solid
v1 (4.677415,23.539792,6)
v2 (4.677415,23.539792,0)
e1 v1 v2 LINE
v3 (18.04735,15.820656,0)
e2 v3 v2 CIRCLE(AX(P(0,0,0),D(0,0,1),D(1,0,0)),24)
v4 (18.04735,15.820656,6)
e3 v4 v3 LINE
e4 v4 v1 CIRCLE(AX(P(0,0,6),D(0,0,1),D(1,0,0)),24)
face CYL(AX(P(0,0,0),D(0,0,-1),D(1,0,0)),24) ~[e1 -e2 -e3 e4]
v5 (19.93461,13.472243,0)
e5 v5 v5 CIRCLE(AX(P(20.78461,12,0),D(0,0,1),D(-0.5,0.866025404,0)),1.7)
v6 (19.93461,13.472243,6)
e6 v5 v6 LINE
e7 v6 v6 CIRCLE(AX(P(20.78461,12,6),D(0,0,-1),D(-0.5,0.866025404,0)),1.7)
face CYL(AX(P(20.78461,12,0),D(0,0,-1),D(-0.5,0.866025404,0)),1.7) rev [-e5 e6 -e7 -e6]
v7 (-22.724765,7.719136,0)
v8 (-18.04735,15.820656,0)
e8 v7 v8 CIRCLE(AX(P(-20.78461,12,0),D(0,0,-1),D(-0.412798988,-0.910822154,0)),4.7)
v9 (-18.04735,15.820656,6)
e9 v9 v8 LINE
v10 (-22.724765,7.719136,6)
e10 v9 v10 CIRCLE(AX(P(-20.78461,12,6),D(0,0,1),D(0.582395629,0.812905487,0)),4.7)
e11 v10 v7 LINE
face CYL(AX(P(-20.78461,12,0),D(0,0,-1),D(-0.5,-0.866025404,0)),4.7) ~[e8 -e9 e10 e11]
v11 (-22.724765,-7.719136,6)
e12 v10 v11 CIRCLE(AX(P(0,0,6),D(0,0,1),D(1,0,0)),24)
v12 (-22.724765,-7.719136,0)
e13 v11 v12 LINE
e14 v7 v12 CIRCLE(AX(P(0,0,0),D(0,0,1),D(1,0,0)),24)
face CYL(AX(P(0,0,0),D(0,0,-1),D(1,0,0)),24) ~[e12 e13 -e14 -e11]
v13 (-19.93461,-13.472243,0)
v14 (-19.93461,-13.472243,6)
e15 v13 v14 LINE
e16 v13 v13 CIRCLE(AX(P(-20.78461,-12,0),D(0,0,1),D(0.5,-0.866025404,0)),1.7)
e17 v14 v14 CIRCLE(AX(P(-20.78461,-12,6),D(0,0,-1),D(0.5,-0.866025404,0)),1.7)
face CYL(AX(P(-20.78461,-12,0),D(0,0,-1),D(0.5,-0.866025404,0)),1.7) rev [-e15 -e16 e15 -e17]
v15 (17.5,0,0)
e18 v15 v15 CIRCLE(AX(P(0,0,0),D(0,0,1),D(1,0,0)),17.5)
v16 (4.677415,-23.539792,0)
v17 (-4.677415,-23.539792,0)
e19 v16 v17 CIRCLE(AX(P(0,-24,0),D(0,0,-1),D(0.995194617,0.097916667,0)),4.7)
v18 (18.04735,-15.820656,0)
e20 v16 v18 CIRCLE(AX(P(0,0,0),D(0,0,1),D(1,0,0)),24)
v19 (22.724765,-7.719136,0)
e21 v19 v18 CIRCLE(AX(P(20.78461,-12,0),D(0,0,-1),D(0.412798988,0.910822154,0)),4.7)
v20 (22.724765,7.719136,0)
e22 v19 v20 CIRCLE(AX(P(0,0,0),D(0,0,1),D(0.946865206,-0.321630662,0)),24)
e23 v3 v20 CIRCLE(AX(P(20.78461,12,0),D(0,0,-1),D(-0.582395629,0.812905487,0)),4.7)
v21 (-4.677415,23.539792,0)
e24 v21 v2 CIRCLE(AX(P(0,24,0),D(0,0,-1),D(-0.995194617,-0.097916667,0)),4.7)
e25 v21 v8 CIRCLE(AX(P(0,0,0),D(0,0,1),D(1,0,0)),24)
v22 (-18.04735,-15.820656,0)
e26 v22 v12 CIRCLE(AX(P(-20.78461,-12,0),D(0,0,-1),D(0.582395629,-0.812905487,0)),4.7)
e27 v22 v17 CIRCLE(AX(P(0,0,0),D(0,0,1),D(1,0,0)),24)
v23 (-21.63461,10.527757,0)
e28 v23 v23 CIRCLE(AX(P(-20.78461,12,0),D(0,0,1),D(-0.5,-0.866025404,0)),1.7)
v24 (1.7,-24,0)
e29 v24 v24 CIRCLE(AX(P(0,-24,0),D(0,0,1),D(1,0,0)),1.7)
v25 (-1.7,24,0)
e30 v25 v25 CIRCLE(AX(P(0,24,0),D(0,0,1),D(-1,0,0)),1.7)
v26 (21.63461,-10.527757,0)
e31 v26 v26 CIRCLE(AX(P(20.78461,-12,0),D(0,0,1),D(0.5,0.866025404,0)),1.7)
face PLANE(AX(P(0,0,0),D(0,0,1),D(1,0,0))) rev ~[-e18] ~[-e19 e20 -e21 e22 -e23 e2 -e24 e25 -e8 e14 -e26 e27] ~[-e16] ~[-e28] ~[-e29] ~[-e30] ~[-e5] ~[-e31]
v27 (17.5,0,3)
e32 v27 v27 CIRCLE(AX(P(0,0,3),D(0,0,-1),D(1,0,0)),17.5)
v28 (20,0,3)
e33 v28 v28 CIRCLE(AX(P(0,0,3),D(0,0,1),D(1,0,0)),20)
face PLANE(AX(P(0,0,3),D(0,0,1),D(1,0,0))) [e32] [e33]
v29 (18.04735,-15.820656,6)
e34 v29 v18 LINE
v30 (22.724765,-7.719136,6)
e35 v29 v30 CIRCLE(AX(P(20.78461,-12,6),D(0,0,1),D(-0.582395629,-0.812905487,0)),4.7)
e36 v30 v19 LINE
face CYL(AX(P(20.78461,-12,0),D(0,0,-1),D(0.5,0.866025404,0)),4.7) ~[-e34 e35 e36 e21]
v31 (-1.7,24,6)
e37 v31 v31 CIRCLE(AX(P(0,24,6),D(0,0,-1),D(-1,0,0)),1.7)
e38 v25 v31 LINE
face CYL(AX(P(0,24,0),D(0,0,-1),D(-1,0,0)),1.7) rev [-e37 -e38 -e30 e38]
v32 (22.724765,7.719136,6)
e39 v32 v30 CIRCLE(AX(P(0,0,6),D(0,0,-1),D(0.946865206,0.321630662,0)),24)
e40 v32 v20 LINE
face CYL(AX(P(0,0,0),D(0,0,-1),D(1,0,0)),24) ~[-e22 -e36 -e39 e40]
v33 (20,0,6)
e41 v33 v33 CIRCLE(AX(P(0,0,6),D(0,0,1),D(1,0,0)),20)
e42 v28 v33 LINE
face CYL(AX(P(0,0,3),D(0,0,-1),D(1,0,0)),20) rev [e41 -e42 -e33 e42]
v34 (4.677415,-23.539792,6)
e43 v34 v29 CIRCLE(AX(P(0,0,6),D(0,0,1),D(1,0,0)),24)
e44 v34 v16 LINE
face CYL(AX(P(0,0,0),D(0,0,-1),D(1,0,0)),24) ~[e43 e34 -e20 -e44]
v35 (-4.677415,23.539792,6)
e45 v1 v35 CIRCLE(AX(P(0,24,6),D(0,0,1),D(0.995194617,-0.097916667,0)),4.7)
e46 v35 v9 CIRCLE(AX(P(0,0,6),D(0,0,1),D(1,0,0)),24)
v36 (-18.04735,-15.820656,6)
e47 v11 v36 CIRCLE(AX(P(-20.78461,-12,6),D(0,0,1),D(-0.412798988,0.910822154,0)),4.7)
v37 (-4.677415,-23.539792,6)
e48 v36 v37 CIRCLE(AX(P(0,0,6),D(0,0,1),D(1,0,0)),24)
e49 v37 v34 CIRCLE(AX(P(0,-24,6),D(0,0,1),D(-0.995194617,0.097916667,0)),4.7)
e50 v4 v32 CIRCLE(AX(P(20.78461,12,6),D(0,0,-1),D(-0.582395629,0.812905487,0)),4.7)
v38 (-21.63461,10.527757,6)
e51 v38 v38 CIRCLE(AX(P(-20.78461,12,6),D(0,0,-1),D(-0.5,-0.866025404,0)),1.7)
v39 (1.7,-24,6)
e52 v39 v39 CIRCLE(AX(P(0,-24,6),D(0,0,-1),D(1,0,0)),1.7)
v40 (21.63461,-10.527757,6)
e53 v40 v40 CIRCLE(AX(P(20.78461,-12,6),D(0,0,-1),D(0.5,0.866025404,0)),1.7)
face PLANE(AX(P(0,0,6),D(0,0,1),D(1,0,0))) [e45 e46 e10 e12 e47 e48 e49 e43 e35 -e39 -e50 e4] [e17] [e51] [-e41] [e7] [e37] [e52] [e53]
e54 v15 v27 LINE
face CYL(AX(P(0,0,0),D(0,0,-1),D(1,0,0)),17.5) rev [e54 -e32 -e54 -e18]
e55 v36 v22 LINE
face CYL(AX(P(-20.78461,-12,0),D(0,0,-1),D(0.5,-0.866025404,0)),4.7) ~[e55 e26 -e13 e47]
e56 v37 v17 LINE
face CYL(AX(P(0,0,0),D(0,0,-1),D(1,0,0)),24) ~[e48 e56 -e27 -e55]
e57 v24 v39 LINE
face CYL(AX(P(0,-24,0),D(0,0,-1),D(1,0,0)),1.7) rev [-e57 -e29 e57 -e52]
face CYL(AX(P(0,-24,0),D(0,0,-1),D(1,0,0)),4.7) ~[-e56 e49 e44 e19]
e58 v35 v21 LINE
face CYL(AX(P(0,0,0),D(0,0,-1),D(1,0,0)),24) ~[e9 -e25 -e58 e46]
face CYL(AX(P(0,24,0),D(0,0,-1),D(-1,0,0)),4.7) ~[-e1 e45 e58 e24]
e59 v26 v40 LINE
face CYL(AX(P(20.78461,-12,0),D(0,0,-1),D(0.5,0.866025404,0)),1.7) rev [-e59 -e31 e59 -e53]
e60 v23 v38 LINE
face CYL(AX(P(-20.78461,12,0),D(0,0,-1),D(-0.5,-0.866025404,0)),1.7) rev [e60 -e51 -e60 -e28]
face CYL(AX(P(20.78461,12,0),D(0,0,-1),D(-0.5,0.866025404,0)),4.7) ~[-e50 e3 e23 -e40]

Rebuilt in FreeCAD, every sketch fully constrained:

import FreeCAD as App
import Part
import Sketcher

V = App.Vector
Q = App.Units.Quantity

doc = App.newDocument("Part")
params = doc.addObject("Spreadsheet::Sheet", "Params")
for row, (alias, value) in enumerate([
    ("sketch1_diameter", "35 mm"),
    ("pad1_length", "10 mm"),
    ("sketch2_diameter", "40 mm"),
    ("pad2_length", "3 mm"),
    ("sketch3_diameter", "3.4 mm"),
    ("pad3_length", "10 mm"),
    ("sketch4_diameter", "48 mm"),
    ("pad4_length", "6 mm"),
    ("sketch5_diameter", "9.4 mm"),
    ("pad5_length", "6 mm"),
], start=1):
    params.set(f"A{row}", alias)
    params.set(f"B{row}", "=" + value)
    params.setAlias(f"B{row}", alias)

body = doc.addObject("PartDesign::Body", "Body")

# Sketch on XY plane
sketch1 = body.newObject("Sketcher::SketchObject", "Sketch")
sketch1.AttachmentSupport = (doc.getObject("XY_Plane"), [""])
sketch1.MapMode = "FlatFace"
sketch1.addGeometry(Part.Circle(V(0, 0, 0), V(0, 0, 1), 18), False)
sketch1.addConstraint([
    Sketcher.Constraint("Coincident", 0, 3, -1, 1),
    Sketcher.Constraint("Diameter", 0, Q("35 mm")),
])
sketch1.setExpression("Constraints[1]", "Params.sketch1_diameter")
pad1 = body.newObject("PartDesign::Pad", "Pad")
pad1.Profile = sketch1
pad1.setExpression("Length", "Params.pad1_length")
body2 = doc.addObject("PartDesign::Body", "Body001")

# Sketch on XY plane
sketch2 = body2.newObject("Sketcher::SketchObject", "Sketch001")
sketch2.AttachmentSupport = (doc.getObject("XY_Plane001"), [""])
sketch2.MapMode = "FlatFace"
sketch2.AttachmentOffset = App.Placement(V(0, 0, 3), App.Rotation())
sketch2.addGeometry(Part.Circle(V(0, 0, 0), V(0, 0, 1), 20), False)
sketch2.addConstraint([
    Sketcher.Constraint("Coincident", 0, 3, -1, 1),
    Sketcher.Constraint("Diameter", 0, Q("40 mm")),
])
sketch2.setExpression("Constraints[1]", "Params.sketch2_diameter")
pad2 = body2.newObject("PartDesign::Pad", "Pad001")
pad2.Profile = sketch2
pad2.setExpression("Length", "Params.pad2_length")
body3 = doc.addObject("PartDesign::Body", "Body002")

# Sketch on XY plane
sketch3 = body3.newObject("Sketcher::SketchObject", "Sketch002")
sketch3.AttachmentSupport = (doc.getObject("XY_Plane002"), [""])
sketch3.MapMode = "FlatFace"
sketch3.addGeometry(Part.Circle(V(0, -24, 0), V(0, 0, 1), 1.7), False)
sketch3.addConstraint([
    Sketcher.Constraint("PointOnObject", 0, 3, -2),
    Sketcher.Constraint("Diameter", 0, Q("3.4 mm")),
    Sketcher.Constraint("DistanceY", 0, 3, -1, 1, Q("24 mm")),
])
sketch3.setExpression("Constraints[1]", "Params.sketch3_diameter")
pad3 = body3.newObject("PartDesign::Pad", "Pad002")
pad3.Profile = sketch3
pad3.setExpression("Length", "Params.pad3_length")
body4 = doc.addObject("PartDesign::Body", "Body003")
body4.AllowCompound = True
doc.recompute()

body4.BaseFeature = body3
doc.recompute()

body5 = doc.addObject("PartDesign::Body", "Body004")
body5.BaseFeature = body3
body5.Placement = App.Placement(V(0, 0, 0), App.Rotation(V(0, 0, 1), 60))
boolean = body4.newObject("PartDesign::Boolean", "Boolean")
boolean.Type = "Fuse"
boolean.addObjects([body5])
doc.recompute()

body6 = doc.addObject("PartDesign::Body", "Body005")
body6.BaseFeature = body3
body6.Placement = App.Placement(V(0, 0, 0), App.Rotation(V(0, 0, 1), 120))
boolean2 = body4.newObject("PartDesign::Boolean", "Boolean001")
boolean2.Type = "Fuse"
boolean2.addObjects([body6])
doc.recompute()

body7 = doc.addObject("PartDesign::Body", "Body006")
body7.BaseFeature = body3
body7.Placement = App.Placement(V(0, 0, 0), App.Rotation(V(0, 0, 1), 180))
boolean3 = body4.newObject("PartDesign::Boolean", "Boolean002")
boolean3.Type = "Fuse"
boolean3.addObjects([body7])
doc.recompute()

body8 = doc.addObject("PartDesign::Body", "Body007")
body8.BaseFeature = body3
body8.Placement = App.Placement(V(0, 0, 0), App.Rotation(V(0, 0, 1), 240))
boolean4 = body4.newObject("PartDesign::Boolean", "Boolean003")
boolean4.Type = "Fuse"
boolean4.addObjects([body8])
doc.recompute()

body3.Placement = App.Placement(V(0, 0, 0), App.Rotation(V(0, 0, 1), 300))
boolean5 = body4.newObject("PartDesign::Boolean", "Boolean004")
boolean5.Type = "Fuse"
boolean5.addObjects([body3])
doc.recompute()

boolean6 = body4.newObject("PartDesign::Boolean", "Boolean005")
boolean6.Type = "Fuse"
boolean6.addObjects([body])
doc.recompute()

boolean7 = body4.newObject("PartDesign::Boolean", "Boolean006")
boolean7.Type = "Fuse"
boolean7.addObjects([body2])
body9 = doc.addObject("PartDesign::Body", "Body008")

# Sketch on XY plane
sketch4 = body9.newObject("Sketcher::SketchObject", "Sketch003")
sketch4.AttachmentSupport = (doc.getObject("XY_Plane008"), [""])
sketch4.MapMode = "FlatFace"
sketch4.addGeometry(Part.Circle(V(0, 0, 0), V(0, 0, 1), 24), False)
sketch4.addConstraint([
    Sketcher.Constraint("Coincident", 0, 3, -1, 1),
    Sketcher.Constraint("Diameter", 0, Q("48 mm")),
])
sketch4.setExpression("Constraints[1]", "Params.sketch4_diameter")
pad4 = body9.newObject("PartDesign::Pad", "Pad003")
pad4.Profile = sketch4
pad4.setExpression("Length", "Params.pad4_length")
body10 = doc.addObject("PartDesign::Body", "Body009")

# Sketch on XY plane
sketch5 = body10.newObject("Sketcher::SketchObject", "Sketch004")
sketch5.AttachmentSupport = (doc.getObject("XY_Plane009"), [""])
sketch5.MapMode = "FlatFace"
sketch5.addGeometry(Part.Circle(V(0, -24, 0), V(0, 0, 1), 4.7), False)
sketch5.addConstraint([
    Sketcher.Constraint("PointOnObject", 0, 3, -2),
    Sketcher.Constraint("Diameter", 0, Q("9.4 mm")),
    Sketcher.Constraint("DistanceY", 0, 3, -1, 1, Q("24 mm")),
])
sketch5.setExpression("Constraints[1]", "Params.sketch5_diameter")
pad5 = body10.newObject("PartDesign::Pad", "Pad004")
pad5.Profile = sketch5
pad5.setExpression("Length", "Params.pad5_length")
body11 = doc.addObject("PartDesign::Body", "Body010")
body11.AllowCompound = True
doc.recompute()

body11.BaseFeature = body10
doc.recompute()

body12 = doc.addObject("PartDesign::Body", "Body011")
body12.BaseFeature = body10
body12.Placement = App.Placement(V(0, 0, 0), App.Rotation(V(0, 0, 1), 60))
boolean8 = body11.newObject("PartDesign::Boolean", "Boolean007")
boolean8.Type = "Fuse"
boolean8.addObjects([body12])
doc.recompute()

body13 = doc.addObject("PartDesign::Body", "Body012")
body13.BaseFeature = body10
body13.Placement = App.Placement(V(0, 0, 0), App.Rotation(V(0, 0, 1), 120))
boolean9 = body11.newObject("PartDesign::Boolean", "Boolean008")
boolean9.Type = "Fuse"
boolean9.addObjects([body13])
doc.recompute()

body14 = doc.addObject("PartDesign::Body", "Body013")
body14.BaseFeature = body10
body14.Placement = App.Placement(V(0, 0, 0), App.Rotation(V(0, 0, 1), 180))
boolean10 = body11.newObject("PartDesign::Boolean", "Boolean009")
boolean10.Type = "Fuse"
boolean10.addObjects([body14])
doc.recompute()

body15 = doc.addObject("PartDesign::Body", "Body014")
body15.BaseFeature = body10
body15.Placement = App.Placement(V(0, 0, 0), App.Rotation(V(0, 0, 1), 240))
boolean11 = body11.newObject("PartDesign::Boolean", "Boolean010")
boolean11.Type = "Fuse"
boolean11.addObjects([body15])
doc.recompute()

body10.Placement = App.Placement(V(0, 0, 0), App.Rotation(V(0, 0, 1), 300))
boolean12 = body11.newObject("PartDesign::Boolean", "Boolean011")
boolean12.Type = "Fuse"
boolean12.addObjects([body10])
doc.recompute()

boolean13 = body11.newObject("PartDesign::Boolean", "Boolean012")
boolean13.Type = "Fuse"
boolean13.addObjects([body9])
doc.recompute()

boolean14 = body11.newObject("PartDesign::Boolean", "Boolean013")
boolean14.Type = "Cut"
boolean14.addObjects([body4])

doc.recompute()
